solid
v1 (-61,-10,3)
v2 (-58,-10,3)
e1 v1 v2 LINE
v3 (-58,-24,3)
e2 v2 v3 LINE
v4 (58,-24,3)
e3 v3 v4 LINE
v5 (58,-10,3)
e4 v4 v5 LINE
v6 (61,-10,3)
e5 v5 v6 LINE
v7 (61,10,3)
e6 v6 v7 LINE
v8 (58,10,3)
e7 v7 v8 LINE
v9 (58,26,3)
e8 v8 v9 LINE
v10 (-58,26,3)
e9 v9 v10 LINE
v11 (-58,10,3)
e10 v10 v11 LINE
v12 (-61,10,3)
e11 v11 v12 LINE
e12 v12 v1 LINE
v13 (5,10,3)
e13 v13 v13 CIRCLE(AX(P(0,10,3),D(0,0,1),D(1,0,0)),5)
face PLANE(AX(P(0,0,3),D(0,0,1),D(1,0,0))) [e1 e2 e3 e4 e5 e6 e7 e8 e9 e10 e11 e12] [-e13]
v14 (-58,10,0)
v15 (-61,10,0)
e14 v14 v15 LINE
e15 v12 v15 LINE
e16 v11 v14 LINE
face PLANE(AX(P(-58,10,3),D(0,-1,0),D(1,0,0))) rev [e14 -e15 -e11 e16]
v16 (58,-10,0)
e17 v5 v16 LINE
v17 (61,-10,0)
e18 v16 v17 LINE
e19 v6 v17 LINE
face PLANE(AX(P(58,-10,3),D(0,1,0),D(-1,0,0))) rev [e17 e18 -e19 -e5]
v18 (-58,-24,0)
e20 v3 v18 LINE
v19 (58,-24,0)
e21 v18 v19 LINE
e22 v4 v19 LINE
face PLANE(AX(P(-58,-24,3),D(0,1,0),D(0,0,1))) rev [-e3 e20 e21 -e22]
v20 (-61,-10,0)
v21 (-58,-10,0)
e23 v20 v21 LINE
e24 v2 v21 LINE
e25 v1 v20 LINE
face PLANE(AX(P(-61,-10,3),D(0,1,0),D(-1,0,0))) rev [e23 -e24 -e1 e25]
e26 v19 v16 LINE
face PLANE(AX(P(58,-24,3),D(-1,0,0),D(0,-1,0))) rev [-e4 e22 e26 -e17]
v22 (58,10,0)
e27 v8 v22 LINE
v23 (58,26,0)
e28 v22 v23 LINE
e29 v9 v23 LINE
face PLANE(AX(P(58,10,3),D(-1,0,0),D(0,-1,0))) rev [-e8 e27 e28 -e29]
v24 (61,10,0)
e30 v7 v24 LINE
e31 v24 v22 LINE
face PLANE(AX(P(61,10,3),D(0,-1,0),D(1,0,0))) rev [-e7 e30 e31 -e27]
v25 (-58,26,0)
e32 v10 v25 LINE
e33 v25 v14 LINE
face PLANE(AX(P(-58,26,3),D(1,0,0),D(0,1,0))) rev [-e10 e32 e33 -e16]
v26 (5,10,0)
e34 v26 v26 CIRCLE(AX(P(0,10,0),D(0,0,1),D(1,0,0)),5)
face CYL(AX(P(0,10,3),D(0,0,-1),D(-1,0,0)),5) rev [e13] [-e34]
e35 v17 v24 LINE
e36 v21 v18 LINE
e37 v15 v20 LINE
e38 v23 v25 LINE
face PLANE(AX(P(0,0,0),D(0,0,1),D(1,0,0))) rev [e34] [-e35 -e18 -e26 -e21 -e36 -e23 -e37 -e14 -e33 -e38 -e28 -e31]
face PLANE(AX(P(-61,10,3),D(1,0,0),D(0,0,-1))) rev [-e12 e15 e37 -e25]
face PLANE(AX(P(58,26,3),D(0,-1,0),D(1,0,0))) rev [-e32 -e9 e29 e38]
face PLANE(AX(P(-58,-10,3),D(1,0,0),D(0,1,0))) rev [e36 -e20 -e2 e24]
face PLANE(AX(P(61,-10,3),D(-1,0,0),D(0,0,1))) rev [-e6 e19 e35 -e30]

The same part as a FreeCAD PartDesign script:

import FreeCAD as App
import Part
import Sketcher


def add_polygon(sketch, points):
    """Adds a closed chain of lines whose ends are joined by coincident constraints."""
    first, n = sketch.GeometryCount, len(points)
    for a, b in zip(points, points[1:] + points[:1]):
        sketch.addGeometry(Part.LineSegment(App.Vector(*a, 0), App.Vector(*b, 0)), False)
    for i in range(n):
        sketch.addConstraint(Sketcher.Constraint("Coincident", first + i, 2, first + (i + 1) % n, 1))

doc = App.newDocument("Part")
body = doc.addObject("PartDesign::Body", "Body")

sketch1 = body.newObject("Sketcher::SketchObject", "Sketch")
sketch1.AttachmentSupport = (doc.getObject("XY_Plane"), [""])
sketch1.MapMode = "FlatFace"
add_polygon(sketch1, [(-61, 10), (-61, -10), (-58, -10), (-58, -24), (58, -24), (58, -10), (61, -10), (61, 10), (58, 10), (58, 26), (-58, 26), (-58, 10)])
sketch1.addGeometry(Part.Circle(App.Vector(0, 10, 0), App.Vector(0, 0, 1), 5), False)
sketch1.addConstraint(Sketcher.Constraint("Vertical", 0))
sketch1.addConstraint(Sketcher.Constraint("Horizontal", 1))
sketch1.addConstraint(Sketcher.Constraint("Vertical", 2))
sketch1.addConstraint(Sketcher.Constraint("Horizontal", 3))
sketch1.addConstraint(Sketcher.Constraint("Vertical", 4))
sketch1.addConstraint(Sketcher.Constraint("Horizontal", 5))
sketch1.addConstraint(Sketcher.Constraint("Vertical", 6))
sketch1.addConstraint(Sketcher.Constraint("Horizontal", 7))
sketch1.addConstraint(Sketcher.Constraint("Vertical", 8))
sketch1.addConstraint(Sketcher.Constraint("Horizontal", 9))
sketch1.addConstraint(Sketcher.Constraint("Vertical", 10))
sketch1.addConstraint(Sketcher.Constraint("Horizontal", 11))
sketch1.addConstraint(Sketcher.Constraint("Symmetric", 0, 2, 6, 2, -1, 1))
sketch1.addConstraint(Sketcher.Constraint("Symmetric", 4, 2, 10, 2, -1, 1))
sketch1.addConstraint(Sketcher.Constraint("Symmetric", 1, 2, 4, 2, -2))
sketch1.addConstraint(Sketcher.Constraint("PointOnObject", 12, 3, -2))
sketch1.addConstraint(Sketcher.Constraint("Horizontal", 12, 3, 6, 2))
sketch1.addConstraint(Sketcher.Constraint("Vertical", 4, 2, 7, 2))
sketch1.addConstraint(Sketcher.Constraint("Diameter", 12, 10.0))
sketch1.addConstraint(Sketcher.Constraint("DistanceX", 1, 1, 1, 2, 3.0))
sketch1.addConstraint(Sketcher.Constraint("DistanceX", 3, 1, 3, 2, 116.0))
sketch1.addConstraint(Sketcher.Constraint("DistanceY", 0, 2, 0, 1, 20.0))
sketch1.addConstraint(Sketcher.Constraint("DistanceY", 2, 2, 2, 1, 14.0))
sketch1.addConstraint(Sketcher.Constraint("DistanceY", 8, 1, 8, 2, 16.0))
pad1 = body.newObject("PartDesign::Pad", "Pad")
pad1.Profile = sketch1
pad1.Length = 3

doc.recompute()
